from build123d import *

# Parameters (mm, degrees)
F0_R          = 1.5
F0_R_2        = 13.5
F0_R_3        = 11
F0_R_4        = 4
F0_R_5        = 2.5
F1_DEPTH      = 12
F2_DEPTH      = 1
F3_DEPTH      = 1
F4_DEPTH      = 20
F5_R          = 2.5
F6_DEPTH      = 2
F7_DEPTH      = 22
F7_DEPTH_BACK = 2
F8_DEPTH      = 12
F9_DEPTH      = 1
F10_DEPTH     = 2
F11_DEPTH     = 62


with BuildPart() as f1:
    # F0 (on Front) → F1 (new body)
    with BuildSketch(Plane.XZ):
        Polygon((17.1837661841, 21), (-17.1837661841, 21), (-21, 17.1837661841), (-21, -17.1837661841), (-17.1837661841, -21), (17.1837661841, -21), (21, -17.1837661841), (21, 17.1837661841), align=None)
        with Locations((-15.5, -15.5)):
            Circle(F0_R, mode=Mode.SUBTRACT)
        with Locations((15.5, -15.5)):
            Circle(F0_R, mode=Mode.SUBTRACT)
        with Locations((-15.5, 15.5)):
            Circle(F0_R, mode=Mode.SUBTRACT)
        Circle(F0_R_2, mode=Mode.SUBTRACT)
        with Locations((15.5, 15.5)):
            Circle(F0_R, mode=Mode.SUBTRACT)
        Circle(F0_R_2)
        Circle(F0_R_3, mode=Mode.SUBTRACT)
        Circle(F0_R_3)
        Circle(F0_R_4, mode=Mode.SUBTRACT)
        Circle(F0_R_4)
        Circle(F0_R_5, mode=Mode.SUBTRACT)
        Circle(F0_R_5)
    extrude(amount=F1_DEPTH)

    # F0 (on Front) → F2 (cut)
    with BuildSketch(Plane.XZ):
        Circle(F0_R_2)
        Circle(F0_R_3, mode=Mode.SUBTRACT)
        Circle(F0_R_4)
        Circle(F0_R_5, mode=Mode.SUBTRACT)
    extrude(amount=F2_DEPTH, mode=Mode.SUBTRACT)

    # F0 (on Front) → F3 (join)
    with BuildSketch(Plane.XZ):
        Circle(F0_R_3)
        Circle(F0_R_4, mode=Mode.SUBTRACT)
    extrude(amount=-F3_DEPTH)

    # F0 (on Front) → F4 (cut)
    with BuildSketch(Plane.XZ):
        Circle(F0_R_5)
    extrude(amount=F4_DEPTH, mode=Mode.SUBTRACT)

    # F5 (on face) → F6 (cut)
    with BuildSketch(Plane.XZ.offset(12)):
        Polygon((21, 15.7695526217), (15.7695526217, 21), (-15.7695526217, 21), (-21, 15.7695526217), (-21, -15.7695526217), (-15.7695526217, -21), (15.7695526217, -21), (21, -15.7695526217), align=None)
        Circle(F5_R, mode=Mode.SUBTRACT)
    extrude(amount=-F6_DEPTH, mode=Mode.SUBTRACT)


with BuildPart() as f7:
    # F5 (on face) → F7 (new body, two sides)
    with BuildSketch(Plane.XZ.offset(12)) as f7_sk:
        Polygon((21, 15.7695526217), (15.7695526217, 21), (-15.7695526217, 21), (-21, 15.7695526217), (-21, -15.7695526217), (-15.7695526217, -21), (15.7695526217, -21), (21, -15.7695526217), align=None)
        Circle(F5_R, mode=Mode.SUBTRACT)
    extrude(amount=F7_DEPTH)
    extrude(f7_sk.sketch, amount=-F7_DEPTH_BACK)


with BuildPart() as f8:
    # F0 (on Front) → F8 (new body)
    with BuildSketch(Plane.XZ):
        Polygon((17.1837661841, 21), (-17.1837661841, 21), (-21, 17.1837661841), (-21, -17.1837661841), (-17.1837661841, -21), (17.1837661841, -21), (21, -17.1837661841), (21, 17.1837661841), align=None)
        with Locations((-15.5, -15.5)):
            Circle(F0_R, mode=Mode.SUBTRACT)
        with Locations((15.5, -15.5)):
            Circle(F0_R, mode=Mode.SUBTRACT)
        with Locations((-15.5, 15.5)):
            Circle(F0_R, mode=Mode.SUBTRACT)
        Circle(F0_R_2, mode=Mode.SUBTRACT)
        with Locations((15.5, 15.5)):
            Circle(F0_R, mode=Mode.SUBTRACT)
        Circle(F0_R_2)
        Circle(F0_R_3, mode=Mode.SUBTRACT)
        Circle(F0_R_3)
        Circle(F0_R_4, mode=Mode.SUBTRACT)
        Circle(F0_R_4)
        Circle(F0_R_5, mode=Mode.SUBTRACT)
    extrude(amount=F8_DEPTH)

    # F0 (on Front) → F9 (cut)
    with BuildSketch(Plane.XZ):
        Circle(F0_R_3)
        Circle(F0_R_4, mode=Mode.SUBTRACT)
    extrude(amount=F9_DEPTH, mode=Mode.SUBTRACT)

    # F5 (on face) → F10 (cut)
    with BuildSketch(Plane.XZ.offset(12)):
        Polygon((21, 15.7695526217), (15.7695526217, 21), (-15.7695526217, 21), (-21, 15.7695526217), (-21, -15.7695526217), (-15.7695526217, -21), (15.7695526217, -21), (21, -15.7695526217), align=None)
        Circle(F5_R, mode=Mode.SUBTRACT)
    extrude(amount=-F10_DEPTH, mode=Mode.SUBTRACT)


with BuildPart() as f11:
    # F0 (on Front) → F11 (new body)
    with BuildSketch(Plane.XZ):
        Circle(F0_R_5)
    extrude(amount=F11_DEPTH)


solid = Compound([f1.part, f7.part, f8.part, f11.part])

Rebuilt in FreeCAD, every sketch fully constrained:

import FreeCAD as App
import Part
import Sketcher
Q = App.Units.Quantity


def add_polygon(sketch, points):
    """Adds a closed chain of lines whose ends are joined by coincident constraints."""
    first, n = sketch.GeometryCount, len(points)
    for a, b in zip(points, points[1:] + points[:1]):
        sketch.addGeometry(Part.LineSegment(App.Vector(*a, 0), App.Vector(*b, 0)), False)
    for i in range(n):
        sketch.addConstraint(Sketcher.Constraint("Coincident", first + i, 2, first + (i + 1) % n, 1))

doc = App.newDocument("Part")
body = doc.addObject("PartDesign::Body", "Body")

sketch1 = doc.addObject("Sketcher::SketchObject", "Sketch")
body.addObject(sketch1)
sketch1.AttachmentSupport = (doc.XZ_Plane, [""])
sketch1.MapMode = "FlatFace"
add_polygon(sketch1, [(17.183766, 21), (-17.183766, 21), (-21, 17.183766), (-21, -17.183766), (-17.183766, -21), (17.183766, -21), (21, -17.183766), (21, 17.183766)])
sketch1.addGeometry(Part.Circle(App.Vector(-15.5, -15.5, 0), App.Vector(0, 0, 1), 1.5), False)
sketch1.addGeometry(Part.Circle(App.Vector(15.5, -15.5, 0), App.Vector(0, 0, 1), 1.5), False)
sketch1.addGeometry(Part.Circle(App.Vector(-15.5, 15.5, 0), App.Vector(0, 0, 1), 1.5), False)
sketch1.addGeometry(Part.Circle(App.Vector(15.5, 15.5, 0), App.Vector(0, 0, 1), 1.5), False)
sketch1.addConstraint([
    Sketcher.Constraint("Horizontal", 0),
    Sketcher.Constraint("Vertical", 2),
    Sketcher.Constraint("Horizontal", 4),
    Sketcher.Constraint("Vertical", 6),
    Sketcher.Constraint("Equal", 8, 9),
    Sketcher.Constraint("Equal", 9, 10),
    Sketcher.Constraint("Equal", 10, 11),
    Sketcher.Constraint("Symmetric", 9, 3, 10, 3, -1, 1),
    Sketcher.Constraint("Symmetric", 8, 3, 11, 3, -1, 1),
    Sketcher.Constraint("Symmetric", 0, 2, 4, 2, -1, 1),
    Sketcher.Constraint("Symmetric", 1, 2, 5, 2, -1, 1),
    Sketcher.Constraint("Symmetric", 8, 3, 9, 3, -2),
    Sketcher.Constraint("Perpendicular", 1, 3),
    Sketcher.Constraint("Perpendicular", 5, 7),
    Sketcher.Constraint("Horizontal", 2, 2, 5, 2),
    Sketcher.Constraint("Horizontal", 1, 2, 6, 2),
    Sketcher.Constraint("Vertical", 0, 2, 3, 2),
    Sketcher.Constraint("Equal", 4, 2),
    Sketcher.Constraint("Diameter", 8, Q("3 mm")),
    Sketcher.Constraint("DistanceY", -1, 1, 0, 2, Q("21 mm")),
    Sketcher.Constraint("DistanceX", 8, 3, 9, 3, Q("31 mm")),
    Sketcher.Constraint("DistanceY", 8, 3, 10, 3, Q("31 mm")),
    Sketcher.Constraint("Distance", 1, Q("5.39697 mm")),
])
pad1 = doc.addObject("PartDesign::Pad", "Pad")
body.addObject(pad1)
pad1.Profile = sketch1
pad1.Length = 12

sketch2 = doc.addObject("Sketcher::SketchObject", "Sketch001")
body.addObject(sketch2)
sketch2.AttachmentSupport = (doc.XZ_Plane, [""])
sketch2.MapMode = "FlatFace"
sketch2.addGeometry([
    Part.Circle(App.Vector(0, 0, 0), App.Vector(0, 0, 1), 13.5),
    Part.Circle(App.Vector(0, 0, 0), App.Vector(0, 0, 1), 11),
    Part.Circle(App.Vector(0, 0, 0), App.Vector(0, 0, 1), 4),
    Part.Circle(App.Vector(0, 0, 0), App.Vector(0, 0, 1), 2.5),
], False)
sketch2.addConstraint([
    Sketcher.Constraint("Coincident", 0, 3, -1, 1),
    Sketcher.Constraint("Coincident", 1, 3, -1, 1),
    Sketcher.Constraint("Coincident", 2, 3, -1, 1),
    Sketcher.Constraint("Coincident", 3, 3, -1, 1),
    Sketcher.Constraint("Diameter", 0, Q("27 mm")),
    Sketcher.Constraint("Diameter", 1, Q("22 mm")),
    Sketcher.Constraint("Diameter", 2, Q("8 mm")),
    Sketcher.Constraint("Diameter", 3, Q("5 mm")),
])
pocket1 = doc.addObject("PartDesign::Pocket", "Pocket")
body.addObject(pocket1)
pocket1.Profile = sketch2
pocket1.Length = 1
pocket1.Reversed = True

sketch3 = doc.addObject("Sketcher::SketchObject", "Sketch002")
body.addObject(sketch3)
sketch3.AttachmentSupport = (doc.XZ_Plane, [""])
sketch3.MapMode = "FlatFace"
sketch3.addGeometry([
    Part.Circle(App.Vector(0, 0, 0), App.Vector(0, 0, 1), 11),
    Part.Circle(App.Vector(0, 0, 0), App.Vector(0, 0, 1), 4),
], False)
sketch3.addConstraint([
    Sketcher.Constraint("Coincident", 0, 3, -1, 1),
    Sketcher.Constraint("Coincident", 1, 3, -1, 1),
    Sketcher.Constraint("Diameter", 0, Q("22 mm")),
    Sketcher.Constraint("Diameter", 1, Q("8 mm")),
])
pad2 = doc.addObject("PartDesign::Pad", "Pad001")
body.addObject(pad2)
pad2.Profile = sketch3
pad2.Length = 1
pad2.Reversed = True

sketch4 = doc.addObject("Sketcher::SketchObject", "Sketch003")
body.addObject(sketch4)
sketch4.AttachmentSupport = (doc.XZ_Plane, [""])
sketch4.MapMode = "FlatFace"
sketch4.addGeometry(Part.Circle(App.Vector(0, 0, 0), App.Vector(0, 0, 1), 2.5), False)
sketch4.addConstraint([
    Sketcher.Constraint("Coincident", 0, 3, -1, 1),
    Sketcher.Constraint("Diameter", 0, Q("5 mm")),
])
pocket2 = doc.addObject("PartDesign::Pocket", "Pocket001")
body.addObject(pocket2)
pocket2.Profile = sketch4
pocket2.Length = 20
pocket2.Reversed = True

sketch5 = doc.addObject("Sketcher::SketchObject", "Sketch004")
body.addObject(sketch5)
sketch5.AttachmentSupport = (doc.XZ_Plane, [""])
sketch5.MapMode = "FlatFace"
sketch5.AttachmentOffset = App.Placement(App.Vector(0, 0, 12), App.Rotation())
add_polygon(sketch5, [(21, 15.769553), (15.769553, 21), (-15.769553, 21), (-21, 15.769553), (-21, -15.769553), (-15.769553, -21), (15.769553, -21), (21, -15.769553)])
sketch5.addGeometry(Part.Circle(App.Vector(0, 0, 0), App.Vector(0, 0, 1), 2.5), False)
sketch5.addConstraint([
    Sketcher.Constraint("Horizontal", 1),
    Sketcher.Constraint("Vertical", 3),
    Sketcher.Constraint("Horizontal", 5),
    Sketcher.Constraint("Vertical", 7),
    Sketcher.Constraint("Coincident", 8, 3, -1, 1),
    Sketcher.Constraint("Symmetric", 0, 2, 4, 2, -1, 1),
    Sketcher.Constraint("Symmetric", 2, 2, 6, 2, -1, 1),
    Sketcher.Constraint("Perpendicular", 0, 2),
    Sketcher.Constraint("Perpendicular", 2, 4),
    Sketcher.Constraint("Perpendicular", 4, 6),
    Sketcher.Constraint("Horizontal", 3, 2, 6, 2),
    Sketcher.Constraint("Vertical", 1, 2, 4, 2),
    Sketcher.Constraint("Equal", 5, 3),
    Sketcher.Constraint("Diameter", 8, Q("5 mm")),
    Sketcher.Constraint("DistanceY", -1, 1, 0, 2, Q("21 mm")),
    Sketcher.Constraint("Distance", 0, Q("7.39697 mm")),
])
pocket3 = doc.addObject("PartDesign::Pocket", "Pocket002")
body.addObject(pocket3)
pocket3.Profile = sketch5
pocket3.Length = 2
body2 = doc.addObject("PartDesign::Body", "Body001")

sketch6 = doc.addObject("Sketcher::SketchObject", "Sketch005")
body2.addObject(sketch6)
sketch6.AttachmentSupport = (doc.getObject("XZ_Plane001"), [""])
sketch6.MapMode = "FlatFace"
sketch6.AttachmentOffset = App.Placement(App.Vector(0, 0, 12), App.Rotation())
add_polygon(sketch6, [(21, 15.769553), (15.769553, 21), (-15.769553, 21), (-21, 15.769553), (-21, -15.769553), (-15.769553, -21), (15.769553, -21), (21, -15.769553)])
sketch6.addGeometry(Part.Circle(App.Vector(0, 0, 0), App.Vector(0, 0, 1), 2.5), False)
sketch6.addConstraint([
    Sketcher.Constraint("Horizontal", 1),
    Sketcher.Constraint("Vertical", 3),
    Sketcher.Constraint("Horizontal", 5),
    Sketcher.Constraint("Vertical", 7),
    Sketcher.Constraint("Coincident", 8, 3, -1, 1),
    Sketcher.Constraint("Symmetric", 0, 2, 4, 2, -1, 1),
    Sketcher.Constraint("Symmetric", 2, 2, 6, 2, -1, 1),
    Sketcher.Constraint("Perpendicular", 0, 2),
    Sketcher.Constraint("Perpendicular", 2, 4),
    Sketcher.Constraint("Perpendicular", 4, 6),
    Sketcher.Constraint("Horizontal", 3, 2, 6, 2),
    Sketcher.Constraint("Vertical", 1, 2, 4, 2),
    Sketcher.Constraint("Equal", 5, 3),
    Sketcher.Constraint("Diameter", 8, Q("5 mm")),
    Sketcher.Constraint("DistanceY", -1, 1, 0, 2, Q("21 mm")),
    Sketcher.Constraint("Distance", 0, Q("7.39697 mm")),
])
pad3 = doc.addObject("PartDesign::Pad", "Pad002")
body2.addObject(pad3)
pad3.Profile = sketch6
pad3.Type = "TwoLengths"
pad3.Length = 22
pad3.Length2 = 2
body3 = doc.addObject("PartDesign::Body", "Body002")

sketch7 = doc.addObject("Sketcher::SketchObject", "Sketch006")
body3.addObject(sketch7)
sketch7.AttachmentSupport = (doc.getObject("XZ_Plane002"), [""])
sketch7.MapMode = "FlatFace"
add_polygon(sketch7, [(17.183766, 21), (-17.183766, 21), (-21, 17.183766), (-21, -17.183766), (-17.183766, -21), (17.183766, -21), (21, -17.183766), (21, 17.183766)])
sketch7.addGeometry(Part.Circle(App.Vector(-15.5, -15.5, 0), App.Vector(0, 0, 1), 1.5), False)
sketch7.addGeometry(Part.Circle(App.Vector(15.5, -15.5, 0), App.Vector(0, 0, 1), 1.5), False)
sketch7.addGeometry(Part.Circle(App.Vector(-15.5, 15.5, 0), App.Vector(0, 0, 1), 1.5), False)
sketch7.addGeometry(Part.Circle(App.Vector(0, 0, 0), App.Vector(0, 0, 1), 2.5), False)
sketch7.addGeometry(Part.Circle(App.Vector(15.5, 15.5, 0), App.Vector(0, 0, 1), 1.5), False)
sketch7.addConstraint([
    Sketcher.Constraint("Horizontal", 0),
    Sketcher.Constraint("Vertical", 2),
    Sketcher.Constraint("Horizontal", 4),
    Sketcher.Constraint("Vertical", 6),
    Sketcher.Constraint("Coincident", 11, 3, -1, 1),
    Sketcher.Constraint("Equal", 8, 9),
    Sketcher.Constraint("Equal", 9, 10),
    Sketcher.Constraint("Equal", 10, 12),
    Sketcher.Constraint("Symmetric", 9, 3, 10, 3, -1, 1),
    Sketcher.Constraint("Symmetric", 8, 3, 12, 3, -1, 1),
    Sketcher.Constraint("Symmetric", 0, 2, 4, 2, -1, 1),
    Sketcher.Constraint("Symmetric", 1, 2, 5, 2, -1, 1),
    Sketcher.Constraint("Symmetric", 8, 3, 9, 3, -2),
    Sketcher.Constraint("Perpendicular", 1, 3),
    Sketcher.Constraint("Perpendicular", 5, 7),
    Sketcher.Constraint("Horizontal", 2, 2, 5, 2),
    Sketcher.Constraint("Horizontal", 1, 2, 6, 2),
    Sketcher.Constraint("Vertical", 0, 2, 3, 2),
    Sketcher.Constraint("Equal", 4, 2),
    Sketcher.Constraint("Diameter", 8, Q("3 mm")),
    Sketcher.Constraint("Diameter", 11, Q("5 mm")),
    Sketcher.Constraint("DistanceY", -1, 1, 0, 2, Q("21 mm")),
    Sketcher.Constraint("DistanceX", 8, 3, 9, 3, Q("31 mm")),
    Sketcher.Constraint("DistanceY", 8, 3, 10, 3, Q("31 mm")),
    Sketcher.Constraint("Distance", 1, Q("5.39697 mm")),
])
pad4 = doc.addObject("PartDesign::Pad", "Pad003")
body3.addObject(pad4)
pad4.Profile = sketch7
pad4.Length = 12

sketch8 = doc.addObject("Sketcher::SketchObject", "Sketch007")
body3.addObject(sketch8)
sketch8.AttachmentSupport = (doc.getObject("XZ_Plane002"), [""])
sketch8.MapMode = "FlatFace"
sketch8.addGeometry([
    Part.Circle(App.Vector(0, 0, 0), App.Vector(0, 0, 1), 11),
    Part.Circle(App.Vector(0, 0, 0), App.Vector(0, 0, 1), 4),
], False)
sketch8.addConstraint([
    Sketcher.Constraint("Coincident", 0, 3, -1, 1),
    Sketcher.Constraint("Coincident", 1, 3, -1, 1),
    Sketcher.Constraint("Diameter", 0, Q("22 mm")),
    Sketcher.Constraint("Diameter", 1, Q("8 mm")),
])
pocket4 = doc.addObject("PartDesign::Pocket", "Pocket003")
body3.addObject(pocket4)
pocket4.Profile = sketch8
pocket4.Length = 1
pocket4.Reversed = True

sketch9 = doc.addObject("Sketcher::SketchObject", "Sketch008")
body3.addObject(sketch9)
sketch9.AttachmentSupport = (doc.getObject("XZ_Plane002"), [""])
sketch9.MapMode = "FlatFace"
sketch9.AttachmentOffset = App.Placement(App.Vector(0, 0, 12), App.Rotation())
add_polygon(sketch9, [(21, 15.769553), (15.769553, 21), (-15.769553, 21), (-21, 15.769553), (-21, -15.769553), (-15.769553, -21), (15.769553, -21), (21, -15.769553)])
sketch9.addGeometry(Part.Circle(App.Vector(0, 0, 0), App.Vector(0, 0, 1), 2.5), False)
sketch9.addConstraint([
    Sketcher.Constraint("Horizontal", 1),
    Sketcher.Constraint("Vertical", 3),
    Sketcher.Constraint("Horizontal", 5),
    Sketcher.Constraint("Vertical", 7),
    Sketcher.Constraint("Coincident", 8, 3, -1, 1),
    Sketcher.Constraint("Symmetric", 0, 2, 4, 2, -1, 1),
    Sketcher.Constraint("Symmetric", 2, 2, 6, 2, -1, 1),
    Sketcher.Constraint("Perpendicular", 0, 2),
    Sketcher.Constraint("Perpendicular", 2, 4),
    Sketcher.Constraint("Perpendicular", 4, 6),
    Sketcher.Constraint("Horizontal", 3, 2, 6, 2),
    Sketcher.Constraint("Vertical", 1, 2, 4, 2),
    Sketcher.Constraint("Equal", 5, 3),
    Sketcher.Constraint("Diameter", 8, Q("5 mm")),
    Sketcher.Constraint("DistanceY", -1, 1, 0, 2, Q("21 mm")),
    Sketcher.Constraint("Distance", 0, Q("7.39697 mm")),
])
pocket5 = doc.addObject("PartDesign::Pocket", "Pocket004")
body3.addObject(pocket5)
pocket5.Profile = sketch9
pocket5.Length = 2
body4 = doc.addObject("PartDesign::Body", "Body003")

sketch10 = doc.addObject("Sketcher::SketchObject", "Sketch009")
body4.addObject(sketch10)
sketch10.AttachmentSupport = (doc.getObject("XZ_Plane003"), [""])
sketch10.MapMode = "FlatFace"
sketch10.addGeometry(Part.Circle(App.Vector(0, 0, 0), App.Vector(0, 0, 1), 2.5), False)
sketch10.addConstraint([
    Sketcher.Constraint("Coincident", 0, 3, -1, 1),
    Sketcher.Constraint("Diameter", 0, Q("5 mm")),
])
pad5 = doc.addObject("PartDesign::Pad", "Pad004")
body4.addObject(pad5)
pad5.Profile = sketch10
pad5.Length = 62

doc.recompute()
